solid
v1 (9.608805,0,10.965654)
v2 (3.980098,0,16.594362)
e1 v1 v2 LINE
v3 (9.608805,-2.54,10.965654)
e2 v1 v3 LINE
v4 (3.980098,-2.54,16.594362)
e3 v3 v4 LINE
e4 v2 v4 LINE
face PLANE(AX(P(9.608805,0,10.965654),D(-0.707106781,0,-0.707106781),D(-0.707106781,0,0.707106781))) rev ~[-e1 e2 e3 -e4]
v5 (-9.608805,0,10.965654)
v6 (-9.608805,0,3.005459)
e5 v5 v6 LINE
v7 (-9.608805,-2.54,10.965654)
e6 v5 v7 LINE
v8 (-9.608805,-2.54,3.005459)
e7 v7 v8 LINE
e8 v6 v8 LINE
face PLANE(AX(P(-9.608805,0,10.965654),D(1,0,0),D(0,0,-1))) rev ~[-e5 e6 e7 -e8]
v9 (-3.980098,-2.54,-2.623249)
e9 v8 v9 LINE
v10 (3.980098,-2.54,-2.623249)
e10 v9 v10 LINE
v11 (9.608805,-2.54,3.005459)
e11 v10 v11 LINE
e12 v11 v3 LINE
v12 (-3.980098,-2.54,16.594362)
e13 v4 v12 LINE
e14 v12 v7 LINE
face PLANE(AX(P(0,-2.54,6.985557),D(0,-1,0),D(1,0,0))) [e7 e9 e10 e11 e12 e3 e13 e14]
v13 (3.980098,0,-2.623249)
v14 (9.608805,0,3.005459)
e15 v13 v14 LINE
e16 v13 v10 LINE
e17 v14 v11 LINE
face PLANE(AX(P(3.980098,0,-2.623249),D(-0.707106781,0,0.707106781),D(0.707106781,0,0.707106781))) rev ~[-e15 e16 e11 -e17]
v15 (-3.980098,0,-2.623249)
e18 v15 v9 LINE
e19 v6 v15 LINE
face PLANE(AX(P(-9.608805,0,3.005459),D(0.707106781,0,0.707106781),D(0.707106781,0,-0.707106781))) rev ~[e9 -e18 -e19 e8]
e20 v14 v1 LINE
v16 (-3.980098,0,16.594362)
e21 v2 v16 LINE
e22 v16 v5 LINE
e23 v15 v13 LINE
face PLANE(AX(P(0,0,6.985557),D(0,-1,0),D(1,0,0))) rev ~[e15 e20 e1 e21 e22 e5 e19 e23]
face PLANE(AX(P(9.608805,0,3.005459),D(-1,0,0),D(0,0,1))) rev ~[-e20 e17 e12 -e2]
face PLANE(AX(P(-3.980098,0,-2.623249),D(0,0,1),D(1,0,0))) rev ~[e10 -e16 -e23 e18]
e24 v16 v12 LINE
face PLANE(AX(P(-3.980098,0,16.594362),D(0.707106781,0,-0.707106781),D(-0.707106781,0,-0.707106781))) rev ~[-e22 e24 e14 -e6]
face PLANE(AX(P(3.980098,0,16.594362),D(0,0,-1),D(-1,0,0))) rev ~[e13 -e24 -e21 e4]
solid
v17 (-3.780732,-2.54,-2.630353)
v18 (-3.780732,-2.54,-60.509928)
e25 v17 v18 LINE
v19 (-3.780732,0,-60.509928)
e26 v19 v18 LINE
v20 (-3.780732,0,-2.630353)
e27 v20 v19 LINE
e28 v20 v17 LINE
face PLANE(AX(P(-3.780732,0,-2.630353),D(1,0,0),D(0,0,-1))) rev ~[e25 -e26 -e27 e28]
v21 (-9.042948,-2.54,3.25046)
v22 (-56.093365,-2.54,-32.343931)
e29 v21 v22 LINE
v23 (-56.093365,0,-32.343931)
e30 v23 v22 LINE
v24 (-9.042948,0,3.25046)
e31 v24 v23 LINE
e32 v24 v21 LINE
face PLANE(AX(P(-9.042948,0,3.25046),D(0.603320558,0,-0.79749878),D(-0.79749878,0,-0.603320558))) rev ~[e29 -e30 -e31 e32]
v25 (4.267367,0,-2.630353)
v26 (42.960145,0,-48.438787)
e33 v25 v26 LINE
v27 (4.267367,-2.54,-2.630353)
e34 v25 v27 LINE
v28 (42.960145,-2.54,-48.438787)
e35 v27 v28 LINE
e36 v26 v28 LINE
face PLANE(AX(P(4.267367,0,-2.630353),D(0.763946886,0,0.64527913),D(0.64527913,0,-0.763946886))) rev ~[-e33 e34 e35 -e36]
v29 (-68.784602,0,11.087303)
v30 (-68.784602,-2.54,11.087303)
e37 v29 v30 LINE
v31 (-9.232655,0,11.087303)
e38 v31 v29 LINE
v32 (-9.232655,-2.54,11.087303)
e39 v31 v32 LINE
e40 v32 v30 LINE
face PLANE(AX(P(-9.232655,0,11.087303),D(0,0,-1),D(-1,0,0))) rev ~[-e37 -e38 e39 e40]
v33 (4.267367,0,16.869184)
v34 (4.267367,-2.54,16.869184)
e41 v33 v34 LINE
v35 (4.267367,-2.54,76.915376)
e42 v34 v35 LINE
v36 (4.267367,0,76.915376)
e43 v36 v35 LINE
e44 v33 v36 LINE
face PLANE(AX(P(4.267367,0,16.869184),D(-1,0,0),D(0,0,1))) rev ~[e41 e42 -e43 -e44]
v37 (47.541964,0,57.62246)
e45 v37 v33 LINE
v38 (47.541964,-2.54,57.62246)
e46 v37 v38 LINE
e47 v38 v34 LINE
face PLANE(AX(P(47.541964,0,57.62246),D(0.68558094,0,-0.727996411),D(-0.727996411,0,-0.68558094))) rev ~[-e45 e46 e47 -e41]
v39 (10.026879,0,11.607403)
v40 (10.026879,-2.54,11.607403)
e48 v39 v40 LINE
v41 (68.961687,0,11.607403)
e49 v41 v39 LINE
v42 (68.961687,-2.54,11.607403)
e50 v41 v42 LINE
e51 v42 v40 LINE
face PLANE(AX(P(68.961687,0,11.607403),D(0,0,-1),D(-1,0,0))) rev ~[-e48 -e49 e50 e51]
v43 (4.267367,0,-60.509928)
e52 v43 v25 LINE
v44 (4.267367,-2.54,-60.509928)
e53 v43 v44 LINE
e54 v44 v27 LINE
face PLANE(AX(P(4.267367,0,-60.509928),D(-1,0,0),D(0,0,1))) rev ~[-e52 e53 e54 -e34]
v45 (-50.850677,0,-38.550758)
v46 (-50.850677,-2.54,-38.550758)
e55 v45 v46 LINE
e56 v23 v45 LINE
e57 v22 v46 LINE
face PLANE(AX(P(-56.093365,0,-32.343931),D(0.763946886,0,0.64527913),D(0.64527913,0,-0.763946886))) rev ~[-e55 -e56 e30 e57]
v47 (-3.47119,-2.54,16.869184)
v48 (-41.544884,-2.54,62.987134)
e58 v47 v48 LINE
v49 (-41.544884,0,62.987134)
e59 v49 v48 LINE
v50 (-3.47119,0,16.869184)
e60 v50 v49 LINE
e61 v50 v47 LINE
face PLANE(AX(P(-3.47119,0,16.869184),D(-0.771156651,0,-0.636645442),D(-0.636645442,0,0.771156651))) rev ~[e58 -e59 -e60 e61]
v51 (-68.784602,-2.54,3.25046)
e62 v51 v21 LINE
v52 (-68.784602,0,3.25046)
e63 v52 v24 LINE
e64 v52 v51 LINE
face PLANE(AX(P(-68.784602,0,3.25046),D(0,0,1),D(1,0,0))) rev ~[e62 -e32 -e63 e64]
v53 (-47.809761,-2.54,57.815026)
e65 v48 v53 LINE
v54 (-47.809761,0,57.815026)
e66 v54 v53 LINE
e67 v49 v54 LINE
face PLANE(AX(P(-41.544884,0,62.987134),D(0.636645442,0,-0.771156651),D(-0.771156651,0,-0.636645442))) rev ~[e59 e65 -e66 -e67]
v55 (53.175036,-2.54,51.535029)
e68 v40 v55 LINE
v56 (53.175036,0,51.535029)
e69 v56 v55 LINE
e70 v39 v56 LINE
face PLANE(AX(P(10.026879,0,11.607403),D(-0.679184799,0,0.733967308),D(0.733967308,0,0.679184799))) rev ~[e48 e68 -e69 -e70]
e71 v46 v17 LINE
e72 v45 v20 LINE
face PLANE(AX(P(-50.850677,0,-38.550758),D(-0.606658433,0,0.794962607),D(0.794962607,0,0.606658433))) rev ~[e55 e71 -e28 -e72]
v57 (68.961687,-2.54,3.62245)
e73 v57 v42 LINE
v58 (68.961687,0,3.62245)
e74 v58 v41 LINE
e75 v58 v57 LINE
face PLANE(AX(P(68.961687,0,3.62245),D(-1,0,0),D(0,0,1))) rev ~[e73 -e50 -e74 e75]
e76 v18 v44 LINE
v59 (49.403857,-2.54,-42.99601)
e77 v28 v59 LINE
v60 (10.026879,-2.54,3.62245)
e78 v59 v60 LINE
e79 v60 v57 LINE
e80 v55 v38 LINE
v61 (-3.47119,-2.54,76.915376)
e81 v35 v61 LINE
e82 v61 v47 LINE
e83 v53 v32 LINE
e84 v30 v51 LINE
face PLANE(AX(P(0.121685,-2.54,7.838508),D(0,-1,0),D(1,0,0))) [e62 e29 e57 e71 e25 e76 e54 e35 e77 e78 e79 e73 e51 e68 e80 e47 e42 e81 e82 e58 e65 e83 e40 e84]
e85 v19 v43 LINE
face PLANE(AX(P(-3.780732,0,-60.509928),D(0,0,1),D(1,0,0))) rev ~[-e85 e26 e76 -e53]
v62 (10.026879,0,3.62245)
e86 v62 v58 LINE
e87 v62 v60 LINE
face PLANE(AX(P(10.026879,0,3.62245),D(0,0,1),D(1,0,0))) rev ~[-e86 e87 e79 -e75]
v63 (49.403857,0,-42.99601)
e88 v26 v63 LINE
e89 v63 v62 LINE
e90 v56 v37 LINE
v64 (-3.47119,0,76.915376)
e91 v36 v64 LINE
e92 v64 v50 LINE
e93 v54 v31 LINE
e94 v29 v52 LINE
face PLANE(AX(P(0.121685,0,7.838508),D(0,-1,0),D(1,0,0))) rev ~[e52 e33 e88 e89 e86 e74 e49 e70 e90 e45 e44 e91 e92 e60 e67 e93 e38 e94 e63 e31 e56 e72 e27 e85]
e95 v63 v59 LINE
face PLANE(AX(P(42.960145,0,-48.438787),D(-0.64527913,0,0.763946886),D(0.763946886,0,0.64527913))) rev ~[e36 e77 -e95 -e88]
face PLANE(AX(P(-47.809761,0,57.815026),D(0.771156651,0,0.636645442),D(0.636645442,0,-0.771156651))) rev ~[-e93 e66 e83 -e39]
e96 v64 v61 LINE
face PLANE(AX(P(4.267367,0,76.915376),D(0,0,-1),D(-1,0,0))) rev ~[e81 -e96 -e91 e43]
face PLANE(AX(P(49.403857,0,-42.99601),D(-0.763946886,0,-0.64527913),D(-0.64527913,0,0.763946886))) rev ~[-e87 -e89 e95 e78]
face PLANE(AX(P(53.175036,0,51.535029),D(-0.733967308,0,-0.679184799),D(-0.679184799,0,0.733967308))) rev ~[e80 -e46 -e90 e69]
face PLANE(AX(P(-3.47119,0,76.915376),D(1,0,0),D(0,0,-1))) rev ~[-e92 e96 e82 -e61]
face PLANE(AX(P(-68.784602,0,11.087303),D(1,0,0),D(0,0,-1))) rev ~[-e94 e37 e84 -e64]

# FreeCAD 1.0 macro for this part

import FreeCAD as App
import Part
import Sketcher
from FreeCAD import Vector
Q = App.Units.Quantity

doc = App.newDocument("Part")
body = doc.addObject("PartDesign::Body", "Body")

# Sketch on XZ plane
sketch1 = doc.addObject("Sketcher::SketchObject", "Sketch")
body.addObject(sketch1)
sketch1.AttachmentSupport = (doc.XZ_Plane, [""])
sketch1.MapMode = "FlatFace"
sketch1.addGeometry([
    Part.LineSegment(Vector(10, 3, 0), Vector(10, 11, 0)),  # 0
    Part.LineSegment(Vector(10, 11, 0), Vector(4, 17, 0)),  # 1
    Part.LineSegment(Vector(4, 17, 0), Vector(-4, 17, 0)),  # 2
    Part.LineSegment(Vector(-4, 17, 0), Vector(-10, 11, 0)),  # 3
    Part.LineSegment(Vector(-10, 11, 0), Vector(-10, 3, 0)),  # 4
    Part.LineSegment(Vector(-10, 3, 0), Vector(-4, -3, 0)),  # 5
    Part.LineSegment(Vector(-4, -3, 0), Vector(4, -3, 0)),  # 6
    Part.LineSegment(Vector(4, -3, 0), Vector(10, 3, 0)),  # 7
], False)
sketch1.addConstraint([
    Sketcher.Constraint("Coincident", 0, 2, 1, 1),
    Sketcher.Constraint("Coincident", 1, 2, 2, 1),
    Sketcher.Constraint("Coincident", 2, 2, 3, 1),
    Sketcher.Constraint("Coincident", 3, 2, 4, 1),
    Sketcher.Constraint("Coincident", 4, 2, 5, 1),
    Sketcher.Constraint("Coincident", 5, 2, 6, 1),
    Sketcher.Constraint("Coincident", 6, 2, 7, 1),
    Sketcher.Constraint("Coincident", 7, 2, 0, 1),
    Sketcher.Constraint("Vertical", 0),
    Sketcher.Constraint("Horizontal", 2),
    Sketcher.Constraint("Vertical", 4),
    Sketcher.Constraint("Horizontal", 6),
    Sketcher.Constraint("Symmetric", 0, 2, 3, 2, -2),
    Sketcher.Constraint("Perpendicular", 1, 3),
    Sketcher.Constraint("Perpendicular", 3, 5),
    Sketcher.Constraint("Perpendicular", 5, 7),
    Sketcher.Constraint("Horizontal", 4, 2, 7, 2),
    Sketcher.Constraint("Vertical", 2, 2, 5, 2),
    Sketcher.Constraint("Vertical", 1, 2, 6, 2),
    Sketcher.Constraint("Equal", 6, 0),
    Sketcher.Constraint("DistanceX", 2, 2, 2, 1, Q("7.960195 mm")),
    Sketcher.Constraint("DistanceY", -1, 1, 4, 2, Q("3.005459 mm")),
    Sketcher.Constraint("DistanceY", 5, 2, -1, 1, Q("2.623249 mm")),
])
pad1 = doc.addObject("PartDesign::Pad", "Pad")
body.addObject(pad1)
pad1.Profile = sketch1
pad1.Length = Q("0.1 in")
body2 = doc.addObject("PartDesign::Body", "Body001")

# Sketch on XZ plane
sketch2 = doc.addObject("Sketcher::SketchObject", "Sketch001")
body2.addObject(sketch2)
sketch2.AttachmentSupport = (doc.getObject("XZ_Plane001"), [""])
sketch2.MapMode = "FlatFace"
sketch2.addGeometry([
    Part.LineSegment(Vector(48, 58, 0), Vector(4, 17, 0)),  # 0
    Part.LineSegment(Vector(4, 17, 0), Vector(4, 77, 0)),  # 1
    Part.LineSegment(Vector(4, 77, 0), Vector(-3, 77, 0)),  # 2
    Part.LineSegment(Vector(-3, 77, 0), Vector(-3, 17, 0)),  # 3
    Part.LineSegment(Vector(-3, 17, 0), Vector(-42, 63, 0)),  # 4
    Part.LineSegment(Vector(-42, 63, 0), Vector(-48, 58, 0)),  # 5
    Part.LineSegment(Vector(-48, 58, 0), Vector(-9, 11, 0)),  # 6
    Part.LineSegment(Vector(-9, 11, 0), Vector(-69, 11, 0)),  # 7
    Part.LineSegment(Vector(-69, 11, 0), Vector(-69, 3, 0)),  # 8
    Part.LineSegment(Vector(-69, 3, 0), Vector(-9, 3, 0)),  # 9
    Part.LineSegment(Vector(-9, 3, 0), Vector(-56, -32, 0)),  # 10
    Part.LineSegment(Vector(-56, -32, 0), Vector(-51, -39, 0)),  # 11
    Part.LineSegment(Vector(-51, -39, 0), Vector(-4, -3, 0)),  # 12
    Part.LineSegment(Vector(-4, -3, 0), Vector(-4, -61, 0)),  # 13
    Part.LineSegment(Vector(-4, -61, 0), Vector(4, -61, 0)),  # 14
    Part.LineSegment(Vector(4, -61, 0), Vector(4, -3, 0)),  # 15
    Part.LineSegment(Vector(4, -3, 0), Vector(43, -48, 0)),  # 16
    Part.LineSegment(Vector(43, -48, 0), Vector(49, -43, 0)),  # 17
    Part.LineSegment(Vector(49, -43, 0), Vector(10, 4, 0)),  # 18
    Part.LineSegment(Vector(10, 4, 0), Vector(69, 4, 0)),  # 19
    Part.LineSegment(Vector(69, 4, 0), Vector(69, 12, 0)),  # 20
    Part.LineSegment(Vector(69, 12, 0), Vector(10, 12, 0)),  # 21
    Part.LineSegment(Vector(10, 12, 0), Vector(53, 52, 0)),  # 22
    Part.LineSegment(Vector(53, 52, 0), Vector(48, 58, 0)),  # 23
], False)
sketch2.addConstraint([
    Sketcher.Constraint("Coincident", 0, 2, 1, 1),
    Sketcher.Constraint("Coincident", 1, 2, 2, 1),
    Sketcher.Constraint("Coincident", 2, 2, 3, 1),
    Sketcher.Constraint("Coincident", 3, 2, 4, 1),
    Sketcher.Constraint("Coincident", 4, 2, 5, 1),
    Sketcher.Constraint("Coincident", 5, 2, 6, 1),
    Sketcher.Constraint("Coincident", 6, 2, 7, 1),
    Sketcher.Constraint("Coincident", 7, 2, 8, 1),
    Sketcher.Constraint("Coincident", 8, 2, 9, 1),
    Sketcher.Constraint("Coincident", 9, 2, 10, 1),
    Sketcher.Constraint("Coincident", 10, 2, 11, 1),
    Sketcher.Constraint("Coincident", 11, 2, 12, 1),
    Sketcher.Constraint("Coincident", 12, 2, 13, 1),
    Sketcher.Constraint("Coincident", 13, 2, 14, 1),
    Sketcher.Constraint("Coincident", 14, 2, 15, 1),
    Sketcher.Constraint("Coincident", 15, 2, 16, 1),
    Sketcher.Constraint("Coincident", 16, 2, 17, 1),
    Sketcher.Constraint("Coincident", 17, 2, 18, 1),
    Sketcher.Constraint("Coincident", 18, 2, 19, 1),
    Sketcher.Constraint("Coincident", 19, 2, 20, 1),
    Sketcher.Constraint("Coincident", 20, 2, 21, 1),
    Sketcher.Constraint("Coincident", 21, 2, 22, 1),
    Sketcher.Constraint("Coincident", 22, 2, 23, 1),
    Sketcher.Constraint("Coincident", 23, 2, 0, 1),
    Sketcher.Constraint("Vertical", 1),
    Sketcher.Constraint("Horizontal", 2),
    Sketcher.Constraint("Vertical", 3),
    Sketcher.Constraint("Horizontal", 7),
    Sketcher.Constraint("Vertical", 8),
    Sketcher.Constraint("Horizontal", 9),
    Sketcher.Constraint("Vertical", 13),
    Sketcher.Constraint("Horizontal", 14),
    Sketcher.Constraint("Vertical", 15),
    Sketcher.Constraint("Horizontal", 19),
    Sketcher.Constraint("Vertical", 20),
    Sketcher.Constraint("Horizontal", 21),
    Sketcher.Constraint("Perpendicular", 4, 5),
    Sketcher.Constraint("Perpendicular", 5, 6),
    Sketcher.Constraint("Parallel", 11, 16),
    Sketcher.Constraint("Perpendicular", 16, 17),
    Sketcher.Constraint("Perpendicular", 17, 18),
    Sketcher.Constraint("Perpendicular", 22, 23),
    Sketcher.Constraint("Horizontal", 0, 2, 3, 2),
    Sketcher.Constraint("Horizontal", 12, 2, 15, 2),
    Sketcher.Constraint("Vertical", 1, 2, 14, 2),
    Sketcher.Constraint("Vertical", 18, 2, 21, 2),
    Sketcher.Constraint("DistanceX", 14, 1, 14, 2, Q("8.048099 mm")),
    Sketcher.Constraint("DistanceX", 10, 2, -1, 1, Q("2.2084002 in")),
    Sketcher.Constraint("Distance", 5, Q("8.124 mm")),
    Sketcher.Constraint("DistanceX", 19, 1, 19, 2, Q("58.934808 mm")),
    Sketcher.Constraint("DistanceX", 7, 2, -1, 1, Q("68.784602 mm")),
    Sketcher.Constraint("DistanceY", 6, 2, 21, 2, Q("0.5201 mm")),
    Sketcher.Constraint("Distance", 0, Q("59.443421 mm")),
    Sketcher.Constraint("Distance", 4, Q("59.803608 mm")),
    Sketcher.Constraint("Distance", 18, Q("61.023169 mm")),
    Sketcher.Constraint("DistanceX", 2, 2, 2, 1, Q("7.738556 mm")),
    Sketcher.Constraint("DistanceX", 7, 2, 7, 1, Q("59.551947 mm")),
    Sketcher.Constraint("DistanceX", 9, 1, 9, 2, Q("59.741654 mm")),
    Sketcher.Constraint("DistanceY", 1, 1, 1, 2, Q("60.046192 mm")),
    Sketcher.Constraint("DistanceY", 8, 2, 8, 1, Q("7.836843 mm")),
    Sketcher.Constraint("DistanceY", 13, 2, 13, 1, Q("57.879575 mm")),
    Sketcher.Constraint("DistanceY", 20, 1, 20, 2, Q("7.984953 mm")),
    Sketcher.Constraint("DistanceX", 2, 2, -1, 1, Q("3.47119 mm")),
    Sketcher.Constraint("DistanceX", 5, 2, -1, 1, Q("47.809761 mm")),
    Sketcher.Constraint("DistanceY", -1, 1, 8, 2, Q("3.25046 mm")),
    Sketcher.Constraint("DistanceY", 10, 2, -1, 1, Q("32.343931 mm")),
    Sketcher.Constraint("DistanceY", 17, 2, -1, 1, Q("42.99601 mm")),
    Sketcher.Constraint("DistanceX", -1, 1, 18, 2, Q("10.026879 mm")),
    Sketcher.Constraint("DistanceY", -1, 1, 22, 2, Q("51.535029 mm")),
    Sketcher.Constraint("DistanceY", -1, 1, 23, 2, Q("57.62246 mm")),
    Sketcher.Constraint("DistanceX", 10, 2, 11, 2, Q("5.242688 mm")),
    Sketcher.Constraint("DistanceY", 13, 2, 11, 2, Q("21.95917 mm")),
])
pad2 = doc.addObject("PartDesign::Pad", "Pad001")
body2.addObject(pad2)
pad2.Profile = sketch2
pad2.Length = Q("0.1 in")

doc.recompute()
